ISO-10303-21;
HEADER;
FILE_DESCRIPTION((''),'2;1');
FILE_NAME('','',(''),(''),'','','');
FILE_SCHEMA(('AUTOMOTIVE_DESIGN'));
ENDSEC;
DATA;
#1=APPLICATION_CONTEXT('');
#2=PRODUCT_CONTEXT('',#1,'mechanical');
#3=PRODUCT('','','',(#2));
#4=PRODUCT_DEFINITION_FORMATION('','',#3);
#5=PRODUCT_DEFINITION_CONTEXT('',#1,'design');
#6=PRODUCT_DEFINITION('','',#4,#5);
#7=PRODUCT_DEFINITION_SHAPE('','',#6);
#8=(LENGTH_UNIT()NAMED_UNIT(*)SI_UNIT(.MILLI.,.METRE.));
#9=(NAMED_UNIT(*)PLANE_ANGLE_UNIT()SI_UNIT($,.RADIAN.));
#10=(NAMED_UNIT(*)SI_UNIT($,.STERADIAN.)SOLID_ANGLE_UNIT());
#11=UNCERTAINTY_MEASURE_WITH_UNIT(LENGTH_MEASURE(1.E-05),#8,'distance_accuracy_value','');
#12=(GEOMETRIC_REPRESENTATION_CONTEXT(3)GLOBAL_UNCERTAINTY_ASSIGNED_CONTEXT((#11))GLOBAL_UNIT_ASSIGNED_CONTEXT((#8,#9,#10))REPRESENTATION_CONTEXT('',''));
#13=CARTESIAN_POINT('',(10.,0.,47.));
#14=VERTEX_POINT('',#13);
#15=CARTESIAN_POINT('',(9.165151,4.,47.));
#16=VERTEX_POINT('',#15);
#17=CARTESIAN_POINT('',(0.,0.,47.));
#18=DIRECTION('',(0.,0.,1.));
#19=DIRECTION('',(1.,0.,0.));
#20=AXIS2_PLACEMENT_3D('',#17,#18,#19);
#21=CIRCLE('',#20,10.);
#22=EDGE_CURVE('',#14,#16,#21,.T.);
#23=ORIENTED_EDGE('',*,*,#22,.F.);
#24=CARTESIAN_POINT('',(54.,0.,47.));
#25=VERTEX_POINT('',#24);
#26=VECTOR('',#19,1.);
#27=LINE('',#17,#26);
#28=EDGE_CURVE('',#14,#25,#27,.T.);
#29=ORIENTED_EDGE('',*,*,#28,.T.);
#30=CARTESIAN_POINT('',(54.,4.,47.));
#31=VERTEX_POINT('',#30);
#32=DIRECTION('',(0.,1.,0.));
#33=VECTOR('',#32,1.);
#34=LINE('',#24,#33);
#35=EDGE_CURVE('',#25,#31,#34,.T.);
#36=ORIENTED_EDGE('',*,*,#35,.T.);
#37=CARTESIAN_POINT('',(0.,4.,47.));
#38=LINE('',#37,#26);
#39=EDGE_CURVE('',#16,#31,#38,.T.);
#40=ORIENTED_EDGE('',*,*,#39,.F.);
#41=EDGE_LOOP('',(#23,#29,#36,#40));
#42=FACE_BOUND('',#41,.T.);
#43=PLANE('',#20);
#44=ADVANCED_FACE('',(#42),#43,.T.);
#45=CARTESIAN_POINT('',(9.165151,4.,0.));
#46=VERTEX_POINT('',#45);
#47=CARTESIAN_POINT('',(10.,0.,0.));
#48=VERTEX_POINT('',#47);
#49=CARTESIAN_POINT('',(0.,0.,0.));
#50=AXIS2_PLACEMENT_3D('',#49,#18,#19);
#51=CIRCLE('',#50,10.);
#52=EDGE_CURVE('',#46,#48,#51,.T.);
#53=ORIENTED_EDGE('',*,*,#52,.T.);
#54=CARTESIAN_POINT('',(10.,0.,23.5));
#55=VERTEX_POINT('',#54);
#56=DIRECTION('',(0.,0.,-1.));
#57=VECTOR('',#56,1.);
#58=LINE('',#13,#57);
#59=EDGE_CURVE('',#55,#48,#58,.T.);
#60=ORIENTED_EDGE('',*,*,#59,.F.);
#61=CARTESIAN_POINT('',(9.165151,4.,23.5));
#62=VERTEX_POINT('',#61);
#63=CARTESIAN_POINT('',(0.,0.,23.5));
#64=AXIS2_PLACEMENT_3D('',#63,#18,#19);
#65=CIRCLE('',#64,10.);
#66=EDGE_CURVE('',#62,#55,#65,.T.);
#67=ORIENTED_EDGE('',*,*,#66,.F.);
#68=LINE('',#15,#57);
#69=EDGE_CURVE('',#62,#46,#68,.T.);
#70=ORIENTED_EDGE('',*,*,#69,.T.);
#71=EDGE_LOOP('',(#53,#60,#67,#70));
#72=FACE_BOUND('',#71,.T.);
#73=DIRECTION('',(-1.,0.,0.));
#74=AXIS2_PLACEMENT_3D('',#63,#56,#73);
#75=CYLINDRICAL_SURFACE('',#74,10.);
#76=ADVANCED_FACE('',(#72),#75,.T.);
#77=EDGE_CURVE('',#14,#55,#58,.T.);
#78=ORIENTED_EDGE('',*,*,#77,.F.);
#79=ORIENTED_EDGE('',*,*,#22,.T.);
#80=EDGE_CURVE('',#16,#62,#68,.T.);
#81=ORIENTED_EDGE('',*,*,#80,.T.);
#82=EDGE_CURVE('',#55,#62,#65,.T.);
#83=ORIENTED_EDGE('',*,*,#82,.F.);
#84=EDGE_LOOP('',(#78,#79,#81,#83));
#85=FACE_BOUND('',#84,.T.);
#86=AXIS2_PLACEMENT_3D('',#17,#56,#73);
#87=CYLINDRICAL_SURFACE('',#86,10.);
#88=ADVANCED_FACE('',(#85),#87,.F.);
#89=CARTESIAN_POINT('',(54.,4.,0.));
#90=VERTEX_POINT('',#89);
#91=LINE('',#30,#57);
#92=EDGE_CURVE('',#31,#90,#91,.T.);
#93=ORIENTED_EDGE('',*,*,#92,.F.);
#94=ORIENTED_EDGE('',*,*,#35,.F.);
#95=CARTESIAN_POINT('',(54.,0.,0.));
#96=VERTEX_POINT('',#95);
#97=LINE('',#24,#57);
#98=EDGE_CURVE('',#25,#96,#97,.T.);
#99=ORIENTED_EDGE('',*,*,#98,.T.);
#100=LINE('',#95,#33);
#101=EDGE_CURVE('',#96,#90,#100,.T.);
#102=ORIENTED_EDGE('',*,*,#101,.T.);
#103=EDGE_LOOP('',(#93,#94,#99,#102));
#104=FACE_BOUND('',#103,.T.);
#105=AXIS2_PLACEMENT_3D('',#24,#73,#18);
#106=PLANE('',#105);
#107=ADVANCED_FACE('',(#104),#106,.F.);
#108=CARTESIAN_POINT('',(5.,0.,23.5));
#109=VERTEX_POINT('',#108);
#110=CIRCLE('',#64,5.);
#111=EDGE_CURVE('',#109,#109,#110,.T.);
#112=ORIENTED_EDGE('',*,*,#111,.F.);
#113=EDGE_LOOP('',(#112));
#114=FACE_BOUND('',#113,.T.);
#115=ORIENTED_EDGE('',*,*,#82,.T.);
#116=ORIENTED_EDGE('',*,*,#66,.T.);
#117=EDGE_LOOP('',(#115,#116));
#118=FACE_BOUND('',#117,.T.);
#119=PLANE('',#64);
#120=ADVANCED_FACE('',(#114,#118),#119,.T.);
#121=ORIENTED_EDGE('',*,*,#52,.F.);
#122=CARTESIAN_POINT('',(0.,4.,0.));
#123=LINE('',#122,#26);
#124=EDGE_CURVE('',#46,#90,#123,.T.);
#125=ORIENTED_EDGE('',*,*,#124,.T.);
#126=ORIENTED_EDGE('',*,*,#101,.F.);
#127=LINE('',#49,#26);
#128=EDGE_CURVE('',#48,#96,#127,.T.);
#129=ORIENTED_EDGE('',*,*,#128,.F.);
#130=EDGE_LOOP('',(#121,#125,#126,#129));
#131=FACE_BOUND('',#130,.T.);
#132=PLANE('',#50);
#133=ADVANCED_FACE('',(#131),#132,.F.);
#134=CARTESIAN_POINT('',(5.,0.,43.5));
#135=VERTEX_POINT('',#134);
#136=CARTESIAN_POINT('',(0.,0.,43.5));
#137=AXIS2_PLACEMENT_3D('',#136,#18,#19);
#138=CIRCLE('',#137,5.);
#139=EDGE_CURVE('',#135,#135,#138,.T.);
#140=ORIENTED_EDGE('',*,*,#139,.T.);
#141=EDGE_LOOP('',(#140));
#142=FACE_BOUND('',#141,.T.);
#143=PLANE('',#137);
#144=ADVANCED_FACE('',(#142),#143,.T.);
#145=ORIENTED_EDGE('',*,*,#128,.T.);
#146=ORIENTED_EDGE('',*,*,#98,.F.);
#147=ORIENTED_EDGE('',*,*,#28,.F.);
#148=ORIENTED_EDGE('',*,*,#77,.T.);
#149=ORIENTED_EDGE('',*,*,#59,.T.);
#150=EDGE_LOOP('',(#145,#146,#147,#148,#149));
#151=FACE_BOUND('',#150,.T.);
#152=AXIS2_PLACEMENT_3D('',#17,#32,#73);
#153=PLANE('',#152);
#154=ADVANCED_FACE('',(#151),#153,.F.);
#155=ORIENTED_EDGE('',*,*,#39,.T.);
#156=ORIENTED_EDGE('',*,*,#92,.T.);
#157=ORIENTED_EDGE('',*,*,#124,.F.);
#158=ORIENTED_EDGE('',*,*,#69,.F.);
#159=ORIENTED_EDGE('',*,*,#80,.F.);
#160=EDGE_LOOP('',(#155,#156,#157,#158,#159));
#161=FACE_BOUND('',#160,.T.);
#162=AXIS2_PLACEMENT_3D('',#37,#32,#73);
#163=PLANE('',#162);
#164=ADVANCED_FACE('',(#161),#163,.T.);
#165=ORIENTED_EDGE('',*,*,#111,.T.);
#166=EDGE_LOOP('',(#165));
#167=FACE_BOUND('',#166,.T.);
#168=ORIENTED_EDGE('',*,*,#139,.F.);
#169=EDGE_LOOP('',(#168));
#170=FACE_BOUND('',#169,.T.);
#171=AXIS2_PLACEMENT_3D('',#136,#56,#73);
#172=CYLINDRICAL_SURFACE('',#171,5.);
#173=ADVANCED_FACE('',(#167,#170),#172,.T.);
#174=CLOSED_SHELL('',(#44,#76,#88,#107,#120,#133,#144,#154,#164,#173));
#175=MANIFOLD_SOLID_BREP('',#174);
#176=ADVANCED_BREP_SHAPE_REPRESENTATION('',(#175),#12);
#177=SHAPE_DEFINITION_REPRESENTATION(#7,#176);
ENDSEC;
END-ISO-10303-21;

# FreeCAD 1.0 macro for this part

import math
import FreeCAD as App
import Part
import Sketcher

V = App.Vector
Q = App.Units.Quantity

doc = App.newDocument("Part")
body = doc.addObject("PartDesign::Body", "Body")

# Sketch on XY plane
sketch1 = body.newObject("Sketcher::SketchObject", "Sketch")
sketch1.AttachmentSupport = (doc.getObject("XY_Plane"), [""])
sketch1.MapMode = "FlatFace"
sketch1.addGeometry(Part.Circle(V(0, 0, 0), V(0, 0, 1), 10), False)
sketch1.addConstraint([
    Sketcher.Constraint("Coincident", 0, 3, -1, 1),
    Sketcher.Constraint("Diameter", 0, Q("20 mm")),
])
pad1 = body.newObject("PartDesign::Pad", "Pad")
pad1.Profile = sketch1
pad1.Length = 23.5

# Sketch on XY plane
sketch2 = body.newObject("Sketcher::SketchObject", "Sketch001")
sketch2.AttachmentSupport = (doc.getObject("XY_Plane"), [""])
sketch2.MapMode = "FlatFace"
sketch2.AttachmentOffset = App.Placement(V(0, 0, 23.5), App.Rotation())
sketch2.addGeometry(Part.Circle(V(0, 0, 0), V(0, 0, 1), 5), False)
sketch2.addConstraint([
    Sketcher.Constraint("Coincident", 0, 3, -1, 1),
    Sketcher.Constraint("Diameter", 0, Q("10 mm")),
])
pad2 = body.newObject("PartDesign::Pad", "Pad001")
pad2.Profile = sketch2
pad2.Length = 20

# Sketch on XY plane
sketch3 = body.newObject("Sketcher::SketchObject", "Sketch002")
sketch3.AttachmentSupport = (doc.getObject("XY_Plane"), [""])
sketch3.MapMode = "FlatFace"
sketch3.addGeometry([
    Part.ArcOfCircle(Part.Circle(V(0, 0, 0), V(0, 0, 1), 10), math.radians(0), math.radians(24)),
    Part.LineSegment(V(10, 0, 0), V(54, 0, 0)),
    Part.LineSegment(V(54, 0, 0), V(54, 4, 0)),
    Part.LineSegment(V(54, 4, 0), V(9.2, 4, 0)),
], False)
sketch3.addConstraint([
    Sketcher.Constraint("Coincident", 0, 1, 1, 1),
    Sketcher.Constraint("Coincident", 1, 2, 2, 1),
    Sketcher.Constraint("Coincident", 2, 2, 3, 1),
    Sketcher.Constraint("Coincident", 3, 2, 0, 2),
    Sketcher.Constraint("Horizontal", 1),
    Sketcher.Constraint("Vertical", 2),
    Sketcher.Constraint("Horizontal", 3),
    Sketcher.Constraint("Coincident", 0, 3, -1, 1),
    Sketcher.Constraint("PointOnObject", 0, 1, -1),
    Sketcher.Constraint("Radius", 0, Q("10 mm")),
    Sketcher.Constraint("DistanceX", 1, 1, 1, 2, Q("44 mm")),
    Sketcher.Constraint("DistanceY", 2, 1, 2, 2, Q("4 mm")),
])
pad3 = body.newObject("PartDesign::Pad", "Pad002")
pad3.Profile = sketch3
pad3.Length = 47

doc.recompute()
